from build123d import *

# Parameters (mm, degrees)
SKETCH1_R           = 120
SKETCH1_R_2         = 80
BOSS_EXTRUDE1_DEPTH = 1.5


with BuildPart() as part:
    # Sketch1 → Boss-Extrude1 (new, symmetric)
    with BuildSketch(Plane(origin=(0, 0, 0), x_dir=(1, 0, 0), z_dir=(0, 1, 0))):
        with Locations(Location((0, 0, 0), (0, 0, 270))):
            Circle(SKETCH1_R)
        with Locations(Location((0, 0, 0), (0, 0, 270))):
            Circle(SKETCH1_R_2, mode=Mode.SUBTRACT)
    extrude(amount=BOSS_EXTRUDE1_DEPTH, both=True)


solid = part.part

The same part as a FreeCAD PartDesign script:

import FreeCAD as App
import Part
import Sketcher
from FreeCAD import Vector
Q = App.Units.Quantity

doc = App.newDocument("Part")
body = doc.addObject("PartDesign::Body", "Body")

sketch1 = doc.addObject("Sketcher::SketchObject", "Sketch")
body.addObject(sketch1)
sketch1.AttachmentSupport = (doc.XZ_Plane, [""])
sketch1.MapMode = "FlatFace"
sketch1.addGeometry([
    Part.Circle(Vector(0, 0, 0), Vector(0, 0, 1), 120),
    Part.Circle(Vector(0, 0, 0), Vector(0, 0, 1), 80),
], False)
sketch1.addConstraint([
    Sketcher.Constraint("Coincident", 0, 3, -1, 1),
    Sketcher.Constraint("Coincident", 1, 3, -1, 1),
    Sketcher.Constraint("Diameter", 0, Q("240 mm")),
    Sketcher.Constraint("Diameter", 1, Q("160 mm")),
])
pad1 = doc.addObject("PartDesign::Pad", "Pad")
body.addObject(pad1)
pad1.Profile = sketch1
pad1.Length = 3
pad1.Midplane = True

doc.recompute()
